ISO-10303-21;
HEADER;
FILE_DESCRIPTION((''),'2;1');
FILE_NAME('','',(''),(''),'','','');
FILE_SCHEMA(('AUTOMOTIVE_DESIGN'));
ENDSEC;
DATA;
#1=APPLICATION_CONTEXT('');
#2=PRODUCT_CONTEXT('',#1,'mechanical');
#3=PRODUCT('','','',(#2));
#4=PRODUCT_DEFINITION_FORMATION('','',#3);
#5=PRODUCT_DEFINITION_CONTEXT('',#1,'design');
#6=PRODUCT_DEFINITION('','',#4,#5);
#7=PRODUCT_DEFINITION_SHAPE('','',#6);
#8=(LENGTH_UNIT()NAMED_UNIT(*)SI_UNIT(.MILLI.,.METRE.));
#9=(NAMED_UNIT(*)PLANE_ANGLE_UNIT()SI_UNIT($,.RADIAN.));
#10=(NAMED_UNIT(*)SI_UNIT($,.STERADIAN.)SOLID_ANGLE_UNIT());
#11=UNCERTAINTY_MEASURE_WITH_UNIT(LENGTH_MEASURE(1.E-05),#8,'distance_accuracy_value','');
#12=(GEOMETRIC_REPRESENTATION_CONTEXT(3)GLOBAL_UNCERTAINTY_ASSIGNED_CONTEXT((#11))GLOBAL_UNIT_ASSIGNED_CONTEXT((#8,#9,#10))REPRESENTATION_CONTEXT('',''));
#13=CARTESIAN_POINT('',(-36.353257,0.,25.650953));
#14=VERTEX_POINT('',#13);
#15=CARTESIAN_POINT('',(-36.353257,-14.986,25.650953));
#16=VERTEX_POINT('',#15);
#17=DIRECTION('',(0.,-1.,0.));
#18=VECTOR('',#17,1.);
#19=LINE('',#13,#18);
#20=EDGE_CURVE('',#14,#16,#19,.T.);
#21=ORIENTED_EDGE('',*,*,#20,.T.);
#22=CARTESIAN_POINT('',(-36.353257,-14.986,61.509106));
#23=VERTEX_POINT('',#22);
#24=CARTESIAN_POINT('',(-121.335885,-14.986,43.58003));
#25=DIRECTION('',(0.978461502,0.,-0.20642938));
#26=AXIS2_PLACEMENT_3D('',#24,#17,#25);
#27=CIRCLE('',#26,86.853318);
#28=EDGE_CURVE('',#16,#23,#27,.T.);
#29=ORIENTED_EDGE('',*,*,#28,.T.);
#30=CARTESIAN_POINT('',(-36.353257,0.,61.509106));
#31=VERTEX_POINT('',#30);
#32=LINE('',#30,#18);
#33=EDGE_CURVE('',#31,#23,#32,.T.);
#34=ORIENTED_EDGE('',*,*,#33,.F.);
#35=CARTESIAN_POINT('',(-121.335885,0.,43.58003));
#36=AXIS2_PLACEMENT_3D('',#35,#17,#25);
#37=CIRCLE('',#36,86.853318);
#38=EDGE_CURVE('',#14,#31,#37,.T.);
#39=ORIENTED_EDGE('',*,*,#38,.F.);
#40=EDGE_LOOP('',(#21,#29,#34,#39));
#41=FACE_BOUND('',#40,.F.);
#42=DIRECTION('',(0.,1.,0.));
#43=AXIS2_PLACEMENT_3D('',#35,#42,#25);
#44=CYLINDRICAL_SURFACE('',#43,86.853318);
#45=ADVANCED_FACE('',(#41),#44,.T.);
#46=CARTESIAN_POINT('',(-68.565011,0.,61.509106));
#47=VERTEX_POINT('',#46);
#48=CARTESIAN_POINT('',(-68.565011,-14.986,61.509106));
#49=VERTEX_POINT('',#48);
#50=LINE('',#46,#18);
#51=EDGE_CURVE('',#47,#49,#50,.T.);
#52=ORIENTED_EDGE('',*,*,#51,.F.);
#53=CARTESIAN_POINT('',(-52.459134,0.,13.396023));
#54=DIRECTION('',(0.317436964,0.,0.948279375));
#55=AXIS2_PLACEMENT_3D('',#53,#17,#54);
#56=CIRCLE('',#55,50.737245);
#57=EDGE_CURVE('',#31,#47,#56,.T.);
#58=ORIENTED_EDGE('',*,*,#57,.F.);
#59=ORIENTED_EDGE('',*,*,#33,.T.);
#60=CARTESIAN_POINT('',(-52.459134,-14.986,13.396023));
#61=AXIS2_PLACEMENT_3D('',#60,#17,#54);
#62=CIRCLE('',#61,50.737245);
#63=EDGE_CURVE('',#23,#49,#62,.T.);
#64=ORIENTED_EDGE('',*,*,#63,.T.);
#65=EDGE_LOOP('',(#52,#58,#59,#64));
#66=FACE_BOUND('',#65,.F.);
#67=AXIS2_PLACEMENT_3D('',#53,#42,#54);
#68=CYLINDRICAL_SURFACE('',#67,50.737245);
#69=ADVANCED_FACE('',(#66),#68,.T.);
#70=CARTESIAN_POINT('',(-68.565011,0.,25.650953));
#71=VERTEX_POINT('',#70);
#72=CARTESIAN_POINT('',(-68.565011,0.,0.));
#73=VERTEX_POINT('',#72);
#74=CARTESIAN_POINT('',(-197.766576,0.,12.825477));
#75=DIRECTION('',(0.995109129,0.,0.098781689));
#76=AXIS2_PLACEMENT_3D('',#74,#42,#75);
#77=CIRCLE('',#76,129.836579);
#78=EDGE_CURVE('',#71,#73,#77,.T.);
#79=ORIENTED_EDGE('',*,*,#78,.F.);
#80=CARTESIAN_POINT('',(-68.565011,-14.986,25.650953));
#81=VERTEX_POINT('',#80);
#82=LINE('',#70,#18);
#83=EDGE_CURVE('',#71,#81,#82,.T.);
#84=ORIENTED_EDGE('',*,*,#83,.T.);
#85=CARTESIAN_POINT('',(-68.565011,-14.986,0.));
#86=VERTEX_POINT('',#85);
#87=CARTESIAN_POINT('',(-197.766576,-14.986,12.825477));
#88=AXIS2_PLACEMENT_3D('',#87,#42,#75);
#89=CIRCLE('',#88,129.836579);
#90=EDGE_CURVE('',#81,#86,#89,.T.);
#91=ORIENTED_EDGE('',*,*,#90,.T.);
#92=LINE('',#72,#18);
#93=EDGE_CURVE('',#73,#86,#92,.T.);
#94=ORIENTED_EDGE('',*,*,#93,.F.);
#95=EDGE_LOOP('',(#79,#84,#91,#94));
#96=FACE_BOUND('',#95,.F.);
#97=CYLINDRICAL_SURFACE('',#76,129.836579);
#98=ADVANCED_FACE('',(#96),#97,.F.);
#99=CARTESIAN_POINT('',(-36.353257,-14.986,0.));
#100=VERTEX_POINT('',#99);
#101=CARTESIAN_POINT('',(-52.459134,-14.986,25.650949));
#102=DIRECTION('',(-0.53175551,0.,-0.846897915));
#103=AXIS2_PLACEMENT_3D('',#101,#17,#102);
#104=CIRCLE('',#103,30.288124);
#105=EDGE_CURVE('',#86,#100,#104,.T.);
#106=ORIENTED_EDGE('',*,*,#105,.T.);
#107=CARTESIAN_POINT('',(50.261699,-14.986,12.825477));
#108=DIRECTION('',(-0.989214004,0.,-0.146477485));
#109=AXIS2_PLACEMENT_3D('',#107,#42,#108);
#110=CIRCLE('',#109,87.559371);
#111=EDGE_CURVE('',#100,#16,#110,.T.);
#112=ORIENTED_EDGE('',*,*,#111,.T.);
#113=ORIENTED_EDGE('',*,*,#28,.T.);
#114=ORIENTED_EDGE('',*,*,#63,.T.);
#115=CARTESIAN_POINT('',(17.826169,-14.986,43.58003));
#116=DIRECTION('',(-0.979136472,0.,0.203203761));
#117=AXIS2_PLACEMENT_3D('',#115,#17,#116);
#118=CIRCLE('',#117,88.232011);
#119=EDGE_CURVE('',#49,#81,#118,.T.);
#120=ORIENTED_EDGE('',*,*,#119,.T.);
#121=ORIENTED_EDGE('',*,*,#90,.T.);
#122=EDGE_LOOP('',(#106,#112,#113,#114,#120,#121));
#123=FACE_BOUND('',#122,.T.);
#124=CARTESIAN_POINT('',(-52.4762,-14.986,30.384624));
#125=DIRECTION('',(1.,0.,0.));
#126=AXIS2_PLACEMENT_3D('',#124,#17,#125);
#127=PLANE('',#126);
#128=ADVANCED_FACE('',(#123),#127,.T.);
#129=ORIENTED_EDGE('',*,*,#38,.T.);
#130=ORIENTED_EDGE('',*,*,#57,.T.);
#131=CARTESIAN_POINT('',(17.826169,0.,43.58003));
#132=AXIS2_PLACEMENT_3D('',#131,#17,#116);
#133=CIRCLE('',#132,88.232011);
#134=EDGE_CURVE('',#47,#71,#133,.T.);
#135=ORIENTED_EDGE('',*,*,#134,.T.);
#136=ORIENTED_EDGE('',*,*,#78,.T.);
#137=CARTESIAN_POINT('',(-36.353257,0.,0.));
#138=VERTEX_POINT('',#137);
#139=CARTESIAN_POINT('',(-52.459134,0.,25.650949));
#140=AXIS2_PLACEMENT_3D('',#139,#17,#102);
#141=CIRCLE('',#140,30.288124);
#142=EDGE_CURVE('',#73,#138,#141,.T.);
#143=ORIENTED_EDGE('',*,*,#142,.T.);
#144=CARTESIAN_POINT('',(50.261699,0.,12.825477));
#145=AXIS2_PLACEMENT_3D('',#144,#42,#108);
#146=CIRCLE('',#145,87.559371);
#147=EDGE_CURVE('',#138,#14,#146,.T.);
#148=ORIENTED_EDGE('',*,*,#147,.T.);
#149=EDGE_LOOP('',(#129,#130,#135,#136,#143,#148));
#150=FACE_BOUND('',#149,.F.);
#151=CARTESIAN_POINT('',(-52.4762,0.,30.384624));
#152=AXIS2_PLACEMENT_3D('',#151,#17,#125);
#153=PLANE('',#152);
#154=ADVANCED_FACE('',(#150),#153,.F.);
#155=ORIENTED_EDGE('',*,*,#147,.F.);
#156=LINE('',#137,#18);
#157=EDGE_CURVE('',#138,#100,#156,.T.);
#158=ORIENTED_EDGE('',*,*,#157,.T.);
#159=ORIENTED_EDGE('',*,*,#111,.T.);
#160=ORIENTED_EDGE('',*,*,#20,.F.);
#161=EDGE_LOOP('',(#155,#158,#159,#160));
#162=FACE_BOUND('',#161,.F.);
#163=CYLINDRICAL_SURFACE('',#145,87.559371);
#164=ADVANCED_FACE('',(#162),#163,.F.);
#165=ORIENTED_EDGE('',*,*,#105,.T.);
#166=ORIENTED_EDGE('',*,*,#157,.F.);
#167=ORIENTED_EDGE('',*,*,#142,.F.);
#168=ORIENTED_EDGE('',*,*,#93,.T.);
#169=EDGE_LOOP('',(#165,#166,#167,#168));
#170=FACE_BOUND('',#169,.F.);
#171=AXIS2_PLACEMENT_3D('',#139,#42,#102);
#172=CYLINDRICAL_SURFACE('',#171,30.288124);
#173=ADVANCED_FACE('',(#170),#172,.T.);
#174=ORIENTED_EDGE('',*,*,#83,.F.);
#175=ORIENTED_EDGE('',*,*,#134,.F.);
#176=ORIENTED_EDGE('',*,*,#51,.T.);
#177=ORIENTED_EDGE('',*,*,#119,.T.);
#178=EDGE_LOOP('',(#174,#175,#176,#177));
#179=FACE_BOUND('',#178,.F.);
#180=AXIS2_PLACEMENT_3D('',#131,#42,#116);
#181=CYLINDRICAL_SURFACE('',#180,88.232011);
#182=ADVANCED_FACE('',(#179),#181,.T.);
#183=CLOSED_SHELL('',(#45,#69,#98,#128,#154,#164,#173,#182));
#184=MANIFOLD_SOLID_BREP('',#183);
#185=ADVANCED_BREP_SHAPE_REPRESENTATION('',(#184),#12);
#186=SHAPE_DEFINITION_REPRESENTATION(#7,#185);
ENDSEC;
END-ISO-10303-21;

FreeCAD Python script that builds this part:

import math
import FreeCAD as App
import Part
import Sketcher

V = App.Vector
Q = App.Units.Quantity

doc = App.newDocument("Part")
body = doc.addObject("PartDesign::Body", "Body")

# Sketch on XZ plane
sketch1 = body.newObject("Sketcher::SketchObject", "Sketch")
sketch1.AttachmentSupport = (doc.getObject("XZ_Plane"), [""])
sketch1.MapMode = "FlatFace"
sketch1.addGeometry(Part.ArcOfCircle(Part.Circle(V(-198, 13, 0), V(0, 0, 1), 130), math.radians(-5.67), math.radians(5.67)), False)
sketch1.addGeometry(Part.ArcOfCircle(Part.Circle(V(-52, 26, 0), V(0, 0, 1), 30), math.radians(-122), math.radians(-58)), False)
sketch1.addGeometry(Part.ArcOfCircle(Part.Circle(V(50, 13, 0), V(0, 0, 1), 88), math.radians(171.58), math.radians(188.42)), False)
sketch1.addGeometry(Part.ArcOfCircle(Part.Circle(V(-121, 44, 0), V(0, 0, 1), 87), math.radians(-12), math.radians(12)), False)
sketch1.addGeometry(Part.ArcOfCircle(Part.Circle(V(-52, 13, 0), V(0, 0, 1), 51), math.radians(71), math.radians(109)), False)
sketch1.addGeometry(Part.ArcOfCircle(Part.Circle(V(18, 44, 0), V(0, 0, 1), 88), math.radians(168), math.radians(192)), False)
sketch1.addConstraint(Sketcher.Constraint("Coincident", 0, 1, 1, 1))
sketch1.addConstraint(Sketcher.Constraint("Coincident", 1, 2, 2, 2))
sketch1.addConstraint(Sketcher.Constraint("Coincident", 2, 1, 3, 1))
sketch1.addConstraint(Sketcher.Constraint("Coincident", 3, 2, 4, 1))
sketch1.addConstraint(Sketcher.Constraint("Coincident", 4, 2, 5, 1))
sketch1.addConstraint(Sketcher.Constraint("Coincident", 5, 2, 0, 2))
sketch1.addConstraint(Sketcher.Constraint("PointOnObject", 0, 1, -1))
sketch1.addConstraint(Sketcher.Constraint("PointOnObject", 1, 2, -1))
sketch1.addConstraint(Sketcher.Constraint("Horizontal", 0, 3, 2, 3))
sketch1.addConstraint(Sketcher.Constraint("Horizontal", 3, 3, 5, 3))
sketch1.addConstraint(Sketcher.Constraint("Horizontal", 3, 2, 4, 2))
sketch1.addConstraint(Sketcher.Constraint("Horizontal", 2, 1, 5, 2))
sketch1.addConstraint(Sketcher.Constraint("Vertical", 1, 3, 4, 3))
sketch1.addConstraint(Sketcher.Constraint("Vertical", 2, 1, 3, 2))
sketch1.addConstraint(Sketcher.Constraint("Radius", 0, 129.836579))
sketch1.addConstraint(Sketcher.Constraint("Radius", 2, 87.559371))
sketch1.addConstraint(Sketcher.Constraint("Radius", 5, 88.232011))
sketch1.addConstraint(Sketcher.Constraint("Radius", 1, 30.288124))
sketch1.addConstraint(Sketcher.Constraint("Radius", 3, 86.853318))
sketch1.addConstraint(Sketcher.Constraint("Radius", 4, 50.737245))
sketch1.addConstraint(Sketcher.Constraint("DistanceX", -1, 1, 2, 3, 50.261699))
sketch1.addConstraint(Sketcher.Constraint("DistanceY", -1, 1, 1, 3, 25.650949))
sketch1.addConstraint(Sketcher.Constraint("DistanceY", -1, 1, 3, 3, 43.58003))
sketch1.addConstraint(Sketcher.Constraint("DistanceX", -1, 1, 5, 3, 17.826169))
pad1 = body.newObject("PartDesign::Pad", "Pad")
pad1.Profile = sketch1
pad1.Length = Q("0.59 in")

doc.recompute()
